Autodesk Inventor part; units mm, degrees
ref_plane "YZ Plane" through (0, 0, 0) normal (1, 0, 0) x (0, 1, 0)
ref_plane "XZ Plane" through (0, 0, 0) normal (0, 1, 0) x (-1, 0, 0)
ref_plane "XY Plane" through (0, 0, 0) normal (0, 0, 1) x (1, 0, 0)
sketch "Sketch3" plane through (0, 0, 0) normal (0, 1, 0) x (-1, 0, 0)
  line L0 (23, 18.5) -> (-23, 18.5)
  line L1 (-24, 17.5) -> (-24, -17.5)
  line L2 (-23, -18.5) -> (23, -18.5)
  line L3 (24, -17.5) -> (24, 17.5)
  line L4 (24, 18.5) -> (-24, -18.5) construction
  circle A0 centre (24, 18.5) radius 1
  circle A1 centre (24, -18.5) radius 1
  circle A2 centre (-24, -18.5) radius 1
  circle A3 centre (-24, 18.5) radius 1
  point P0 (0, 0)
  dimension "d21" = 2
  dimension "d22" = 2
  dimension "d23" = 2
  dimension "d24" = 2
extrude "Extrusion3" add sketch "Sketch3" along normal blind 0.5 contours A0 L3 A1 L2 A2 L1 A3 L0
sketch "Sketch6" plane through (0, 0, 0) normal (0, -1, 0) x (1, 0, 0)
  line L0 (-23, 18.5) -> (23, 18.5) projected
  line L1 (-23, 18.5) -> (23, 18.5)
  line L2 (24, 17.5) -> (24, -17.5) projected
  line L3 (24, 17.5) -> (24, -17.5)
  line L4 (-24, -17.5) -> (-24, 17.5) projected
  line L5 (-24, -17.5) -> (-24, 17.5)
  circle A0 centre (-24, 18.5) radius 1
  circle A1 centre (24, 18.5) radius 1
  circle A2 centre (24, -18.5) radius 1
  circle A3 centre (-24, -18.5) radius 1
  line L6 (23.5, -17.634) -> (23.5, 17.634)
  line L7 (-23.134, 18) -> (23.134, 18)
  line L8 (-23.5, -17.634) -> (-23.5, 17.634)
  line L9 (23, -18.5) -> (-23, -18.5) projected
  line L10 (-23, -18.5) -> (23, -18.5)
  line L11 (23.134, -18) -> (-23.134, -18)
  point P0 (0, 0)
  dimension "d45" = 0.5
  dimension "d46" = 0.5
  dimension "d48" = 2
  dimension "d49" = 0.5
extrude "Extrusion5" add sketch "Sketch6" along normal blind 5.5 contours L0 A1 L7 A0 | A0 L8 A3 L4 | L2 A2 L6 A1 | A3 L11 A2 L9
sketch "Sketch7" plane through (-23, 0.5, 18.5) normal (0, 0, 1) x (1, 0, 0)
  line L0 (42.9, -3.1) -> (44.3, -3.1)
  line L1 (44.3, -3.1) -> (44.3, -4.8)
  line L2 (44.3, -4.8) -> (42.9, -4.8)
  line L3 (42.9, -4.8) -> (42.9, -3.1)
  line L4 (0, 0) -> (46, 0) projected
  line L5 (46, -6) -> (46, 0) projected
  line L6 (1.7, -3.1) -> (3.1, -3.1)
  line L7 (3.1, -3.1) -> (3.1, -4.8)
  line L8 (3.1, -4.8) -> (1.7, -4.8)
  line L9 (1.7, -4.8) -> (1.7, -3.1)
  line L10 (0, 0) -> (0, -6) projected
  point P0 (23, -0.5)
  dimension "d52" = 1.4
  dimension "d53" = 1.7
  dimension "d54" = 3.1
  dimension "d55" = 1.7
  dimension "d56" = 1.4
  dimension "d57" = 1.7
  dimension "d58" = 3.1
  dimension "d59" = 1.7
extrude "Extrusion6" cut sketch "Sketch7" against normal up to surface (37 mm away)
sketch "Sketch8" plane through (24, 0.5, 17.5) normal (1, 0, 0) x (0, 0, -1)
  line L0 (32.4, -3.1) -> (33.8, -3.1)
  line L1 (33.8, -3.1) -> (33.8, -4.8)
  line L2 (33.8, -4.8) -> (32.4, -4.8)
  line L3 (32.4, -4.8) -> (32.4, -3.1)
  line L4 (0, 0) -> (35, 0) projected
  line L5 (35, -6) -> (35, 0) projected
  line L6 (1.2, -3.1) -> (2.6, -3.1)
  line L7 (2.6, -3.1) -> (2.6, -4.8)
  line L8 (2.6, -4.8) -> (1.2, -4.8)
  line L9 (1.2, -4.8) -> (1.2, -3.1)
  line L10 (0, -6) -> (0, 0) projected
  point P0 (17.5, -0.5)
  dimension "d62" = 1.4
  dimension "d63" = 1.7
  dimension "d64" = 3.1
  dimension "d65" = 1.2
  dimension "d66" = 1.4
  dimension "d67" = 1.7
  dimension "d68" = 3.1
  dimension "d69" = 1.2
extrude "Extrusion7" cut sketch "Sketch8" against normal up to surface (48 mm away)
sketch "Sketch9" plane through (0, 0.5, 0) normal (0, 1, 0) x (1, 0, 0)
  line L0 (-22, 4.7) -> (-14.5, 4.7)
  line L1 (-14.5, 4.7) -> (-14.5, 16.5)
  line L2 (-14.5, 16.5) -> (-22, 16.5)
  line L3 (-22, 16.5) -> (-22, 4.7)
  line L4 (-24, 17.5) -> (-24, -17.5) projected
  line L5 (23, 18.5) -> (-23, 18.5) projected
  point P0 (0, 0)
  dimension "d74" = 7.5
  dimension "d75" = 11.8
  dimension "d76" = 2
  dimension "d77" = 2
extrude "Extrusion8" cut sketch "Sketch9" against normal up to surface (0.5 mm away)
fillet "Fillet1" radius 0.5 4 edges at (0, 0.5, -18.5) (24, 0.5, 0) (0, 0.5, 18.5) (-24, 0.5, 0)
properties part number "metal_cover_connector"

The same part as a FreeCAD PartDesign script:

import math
import FreeCAD as App
import Part
import Sketcher

V = App.Vector


def edges_at(feature, points):
    """Names of the edges that pass closest to the given points."""
    edges = feature.Shape.Edges
    near = lambda p: min(range(len(edges)), key=lambda i: edges[i].distToShape(Part.Vertex(*p))[0])
    return sorted({f"Edge{near(p) + 1}" for p in points})

doc = App.newDocument("Part")
body = doc.addObject("PartDesign::Body", "Body")

sketch1 = doc.addObject("Sketcher::SketchObject", "Sketch")
body.addObject(sketch1)
sketch1.AttachmentSupport = (doc.XZ_Plane, [""])
sketch1.MapMode = "FlatFace"
sketch1.addGeometry([
    Part.ArcOfCircle(Part.Circle(V(-24, 18.5, 0), V(0, 0, 1), 1), math.radians(-90), math.radians(0)),
    Part.LineSegment(V(-23, 18.5, 0), V(23, 18.5, 0)),
    Part.ArcOfCircle(Part.Circle(V(24, 18.5, 0), V(0, 0, 1), 1), math.radians(180), math.radians(270)),
    Part.LineSegment(V(24, 17.5, 0), V(24, -17.5, 0)),
    Part.ArcOfCircle(Part.Circle(V(24, -18.5, 0), V(0, 0, 1), 1), math.radians(90), math.radians(180)),
    Part.LineSegment(V(23, -18.5, 0), V(-23, -18.5, 0)),
    Part.ArcOfCircle(Part.Circle(V(-24, -18.5, 0), V(0, 0, 1), 1), math.radians(0), math.radians(90)),
    Part.LineSegment(V(-24, -17.5, 0), V(-24, 17.5, 0)),
], False)
sketch1.addConstraint([
    Sketcher.Constraint("Coincident", 0, 2, 1, 1),
    Sketcher.Constraint("Coincident", 1, 2, 2, 1),
    Sketcher.Constraint("Coincident", 2, 2, 3, 1),
    Sketcher.Constraint("Coincident", 3, 2, 4, 1),
    Sketcher.Constraint("Coincident", 4, 2, 5, 1),
    Sketcher.Constraint("Coincident", 5, 2, 6, 1),
    Sketcher.Constraint("Coincident", 6, 2, 7, 1),
    Sketcher.Constraint("Coincident", 7, 2, 0, 1),
    Sketcher.Constraint("Horizontal", 1),
    Sketcher.Constraint("Vertical", 3),
    Sketcher.Constraint("Horizontal", 5),
    Sketcher.Constraint("Vertical", 7),
    Sketcher.Constraint("Equal", 0, 2),
    Sketcher.Constraint("Equal", 2, 4),
    Sketcher.Constraint("Equal", 4, 6),
    Sketcher.Constraint("Symmetric", 0, 3, 4, 3, -1, 1),
    Sketcher.Constraint("Symmetric", 2, 3, 6, 3, -1, 1),
    Sketcher.Constraint("Symmetric", 0, 3, 2, 3, -2),
    Sketcher.Constraint("Horizontal", 2, 3, 0, 2),
    Sketcher.Constraint("Horizontal", 6, 3, 4, 2),
    Sketcher.Constraint("Vertical", 4, 3, 2, 2),
    Sketcher.Constraint("Vertical", 0, 3, 6, 2),
    Sketcher.Constraint("Radius", 0, 1.0),
    Sketcher.Constraint("DistanceX", 1, 1, 1, 2, 46.0),
    Sketcher.Constraint("DistanceY", 3, 2, 3, 1, 35.0),
])
pad1 = doc.addObject("PartDesign::Pad", "Pad")
body.addObject(pad1)
pad1.Profile = sketch1
pad1.Length = 0.5
pad1.Reversed = True

sketch2 = doc.addObject("Sketcher::SketchObject", "Sketch001")
body.addObject(sketch2)
sketch2.AttachmentSupport = (doc.XZ_Plane, [""])
sketch2.MapMode = "FlatFace"
sketch2.addGeometry([
    Part.LineSegment(V(23, 18.5, 0), V(-23, 18.5, 0)),
    Part.ArcOfCircle(Part.Circle(V(-24, 18.5, 0), V(0, 0, 1), 1), math.radians(-30), math.radians(0)),
    Part.LineSegment(V(-23.1, 18, 0), V(23.1, 18, 0)),
    Part.ArcOfCircle(Part.Circle(V(24, 18.5, 0), V(0, 0, 1), 1), math.radians(180), math.radians(210)),
    Part.ArcOfCircle(Part.Circle(V(-24, 18.5, 0), V(0, 0, 1), 1), math.radians(-90), math.radians(-60)),
    Part.LineSegment(V(-24, 17.5, 0), V(-24, -17.5, 0)),
    Part.ArcOfCircle(Part.Circle(V(-24, -18.5, 0), V(0, 0, 1), 1), math.radians(60), math.radians(90)),
    Part.LineSegment(V(-23.5, -17.6, 0), V(-23.5, 17.6, 0)),
    Part.LineSegment(V(24, -17.5, 0), V(24, 17.5, 0)),
    Part.ArcOfCircle(Part.Circle(V(24, 18.5, 0), V(0, 0, 1), 1), math.radians(-120), math.radians(-90)),
    Part.LineSegment(V(23.5, 17.6, 0), V(23.5, -17.6, 0)),
    Part.ArcOfCircle(Part.Circle(V(24, -18.5, 0), V(0, 0, 1), 1), math.radians(90), math.radians(120)),
    Part.ArcOfCircle(Part.Circle(V(-24, -18.5, 0), V(0, 0, 1), 1), math.radians(0), math.radians(30)),
    Part.LineSegment(V(-23, -18.5, 0), V(23, -18.5, 0)),
    Part.ArcOfCircle(Part.Circle(V(24, -18.5, 0), V(0, 0, 1), 1), math.radians(150), math.radians(180)),
    Part.LineSegment(V(23.1, -18, 0), V(-23.1, -18, 0)),
], False)
sketch2.addConstraint([
    Sketcher.Constraint("Coincident", 0, 2, 1, 2),
    Sketcher.Constraint("Coincident", 1, 1, 2, 1),
    Sketcher.Constraint("Coincident", 2, 2, 3, 2),
    Sketcher.Constraint("Coincident", 3, 1, 0, 1),
    Sketcher.Constraint("Coincident", 4, 1, 5, 1),
    Sketcher.Constraint("Coincident", 5, 2, 6, 2),
    Sketcher.Constraint("Coincident", 6, 1, 7, 1),
    Sketcher.Constraint("Coincident", 7, 2, 4, 2),
    Sketcher.Constraint("Coincident", 8, 2, 9, 2),
    Sketcher.Constraint("Coincident", 9, 1, 10, 1),
    Sketcher.Constraint("Coincident", 10, 2, 11, 2),
    Sketcher.Constraint("Coincident", 11, 1, 8, 1),
    Sketcher.Constraint("Coincident", 12, 1, 13, 1),
    Sketcher.Constraint("Coincident", 13, 2, 14, 2),
    Sketcher.Constraint("Coincident", 14, 1, 15, 1),
    Sketcher.Constraint("Coincident", 15, 2, 12, 2),
    Sketcher.Constraint("Horizontal", 0),
    Sketcher.Constraint("Horizontal", 2),
    Sketcher.Constraint("Vertical", 5),
    Sketcher.Constraint("Vertical", 7),
    Sketcher.Constraint("Vertical", 8),
    Sketcher.Constraint("Vertical", 10),
    Sketcher.Constraint("Horizontal", 13),
    Sketcher.Constraint("Horizontal", 15),
    Sketcher.Constraint("Coincident", 4, 3, 1, 3),
    Sketcher.Constraint("Coincident", 9, 3, 3, 3),
    Sketcher.Constraint("Coincident", 12, 3, 6, 3),
    Sketcher.Constraint("Coincident", 14, 3, 11, 3),
    Sketcher.Constraint("Equal", 1, 3),
    Sketcher.Constraint("Equal", 3, 4),
    Sketcher.Constraint("Equal", 4, 6),
    Sketcher.Constraint("Equal", 6, 9),
    Sketcher.Constraint("Equal", 9, 11),
    Sketcher.Constraint("Equal", 11, 12),
    Sketcher.Constraint("Equal", 12, 14),
    Sketcher.Constraint("Symmetric", 3, 3, 6, 3, -1, 1),
    Sketcher.Constraint("Symmetric", 1, 3, 11, 3, -1, 1),
    Sketcher.Constraint("Symmetric", 1, 3, 3, 3, -2),
    Sketcher.Constraint("Horizontal", 9, 3, 0, 2),
    Sketcher.Constraint("Horizontal", 7, 2, 9, 1),
    Sketcher.Constraint("Horizontal", 14, 3, 12, 1),
    Sketcher.Constraint("Vertical", 12, 3, 4, 1),
    Sketcher.Constraint("Vertical", 14, 3, 8, 2),
    Sketcher.Constraint("Vertical", 2, 2, 14, 1),
    Sketcher.Constraint("Radius", 1, 1.0),
    Sketcher.Constraint("DistanceY", 1, 1, 0, 2, 0.5),
    Sketcher.Constraint("DistanceX", 5, 2, 6, 1, 0.5),
    Sketcher.Constraint("DistanceX", 0, 2, 0, 1, 46.0),
    Sketcher.Constraint("DistanceY", 5, 2, 5, 1, 35.0),
])
pad2 = doc.addObject("PartDesign::Pad", "Pad001")
body.addObject(pad2)
pad2.Profile = sketch2
pad2.Length = 5.5

sketch3 = doc.addObject("Sketcher::SketchObject", "Sketch002")
body.addObject(sketch3)
sketch3.AttachmentSupport = (doc.XY_Plane, [""])
sketch3.MapMode = "FlatFace"
sketch3.AttachmentOffset = App.Placement(V(0, 0, 18.5), App.Rotation())
sketch3.addGeometry([
    Part.LineSegment(V(21.3, -2.6, 0), V(19.9, -2.6, 0)),
    Part.LineSegment(V(19.9, -2.6, 0), V(19.9, -4.3, 0)),
    Part.LineSegment(V(19.9, -4.3, 0), V(21.3, -4.3, 0)),
    Part.LineSegment(V(21.3, -4.3, 0), V(21.3, -2.6, 0)),
    Part.LineSegment(V(-19.9, -2.6, 0), V(-21.3, -2.6, 0)),
    Part.LineSegment(V(-21.3, -2.6, 0), V(-21.3, -4.3, 0)),
    Part.LineSegment(V(-21.3, -4.3, 0), V(-19.9, -4.3, 0)),
    Part.LineSegment(V(-19.9, -4.3, 0), V(-19.9, -2.6, 0)),
], False)
sketch3.addConstraint([
    Sketcher.Constraint("Coincident", 0, 2, 1, 1),
    Sketcher.Constraint("Coincident", 1, 2, 2, 1),
    Sketcher.Constraint("Coincident", 2, 2, 3, 1),
    Sketcher.Constraint("Coincident", 3, 2, 0, 1),
    Sketcher.Constraint("Coincident", 4, 2, 5, 1),
    Sketcher.Constraint("Coincident", 5, 2, 6, 1),
    Sketcher.Constraint("Coincident", 6, 2, 7, 1),
    Sketcher.Constraint("Coincident", 7, 2, 4, 1),
    Sketcher.Constraint("Horizontal", 0),
    Sketcher.Constraint("Vertical", 1),
    Sketcher.Constraint("Horizontal", 2),
    Sketcher.Constraint("Vertical", 3),
    Sketcher.Constraint("Horizontal", 4),
    Sketcher.Constraint("Vertical", 5),
    Sketcher.Constraint("Horizontal", 6),
    Sketcher.Constraint("Vertical", 7),
    Sketcher.Constraint("Symmetric", 3, 2, 4, 2, -2),
    Sketcher.Constraint("Symmetric", 1, 2, 6, 2, -2),
    Sketcher.Constraint("DistanceX", 0, 2, 0, 1, 1.4),
    Sketcher.Constraint("DistanceY", 1, 2, 1, 1, 1.7),
    Sketcher.Constraint("DistanceX", -1, 1, 0, 2, 19.9),
    Sketcher.Constraint("DistanceY", 0, 2, -1, 1, 2.6),
])
pocket1 = doc.addObject("PartDesign::Pocket", "Pocket")
body.addObject(pocket1)
pocket1.Profile = sketch3
pocket1.Length = 37

sketch4 = doc.addObject("Sketcher::SketchObject", "Sketch003")
body.addObject(sketch4)
sketch4.AttachmentSupport = (doc.YZ_Plane, [""])
sketch4.MapMode = "FlatFace"
sketch4.AttachmentOffset = App.Placement(V(0, 0, 24), App.Rotation())
sketch4.addGeometry([
    Part.LineSegment(V(-2.6, -16.3, 0), V(-2.6, -14.9, 0)),
    Part.LineSegment(V(-2.6, -14.9, 0), V(-4.3, -14.9, 0)),
    Part.LineSegment(V(-4.3, -14.9, 0), V(-4.3, -16.3, 0)),
    Part.LineSegment(V(-4.3, -16.3, 0), V(-2.6, -16.3, 0)),
    Part.LineSegment(V(-2.6, 14.9, 0), V(-2.6, 16.3, 0)),
    Part.LineSegment(V(-2.6, 16.3, 0), V(-4.3, 16.3, 0)),
    Part.LineSegment(V(-4.3, 16.3, 0), V(-4.3, 14.9, 0)),
    Part.LineSegment(V(-4.3, 14.9, 0), V(-2.6, 14.9, 0)),
], False)
sketch4.addConstraint([
    Sketcher.Constraint("Coincident", 0, 2, 1, 1),
    Sketcher.Constraint("Coincident", 1, 2, 2, 1),
    Sketcher.Constraint("Coincident", 2, 2, 3, 1),
    Sketcher.Constraint("Coincident", 3, 2, 0, 1),
    Sketcher.Constraint("Coincident", 4, 2, 5, 1),
    Sketcher.Constraint("Coincident", 5, 2, 6, 1),
    Sketcher.Constraint("Coincident", 6, 2, 7, 1),
    Sketcher.Constraint("Coincident", 7, 2, 4, 1),
    Sketcher.Constraint("Vertical", 0),
    Sketcher.Constraint("Horizontal", 1),
    Sketcher.Constraint("Vertical", 2),
    Sketcher.Constraint("Horizontal", 3),
    Sketcher.Constraint("Vertical", 4),
    Sketcher.Constraint("Horizontal", 5),
    Sketcher.Constraint("Vertical", 6),
    Sketcher.Constraint("Horizontal", 7),
    Sketcher.Constraint("Symmetric", 3, 2, 4, 2, -1),
    Sketcher.Constraint("Symmetric", 1, 2, 6, 2, -1),
    Sketcher.Constraint("DistanceX", 1, 2, 1, 1, 1.7),
    Sketcher.Constraint("DistanceY", 0, 1, 0, 2, 1.4),
    Sketcher.Constraint("DistanceX", 0, 2, -1, 1, 2.6),
    Sketcher.Constraint("DistanceY", 0, 2, -1, 1, 14.9),
])
pocket2 = doc.addObject("PartDesign::Pocket", "Pocket001")
body.addObject(pocket2)
pocket2.Profile = sketch4
pocket2.Length = 48

sketch5 = doc.addObject("Sketcher::SketchObject", "Sketch004")
body.addObject(sketch5)
sketch5.AttachmentSupport = (doc.XZ_Plane, [""])
sketch5.MapMode = "FlatFace"
sketch5.AttachmentOffset = App.Placement(V(0, 0, -0.5), App.Rotation())
sketch5.addGeometry([
    Part.LineSegment(V(-22, -16, 0), V(-22, -5, 0)),
    Part.LineSegment(V(-22, -5, 0), V(-14, -5, 0)),
    Part.LineSegment(V(-14, -5, 0), V(-14, -16, 0)),
    Part.LineSegment(V(-14, -16, 0), V(-22, -16, 0)),
], False)
sketch5.addConstraint([
    Sketcher.Constraint("Coincident", 0, 2, 1, 1),
    Sketcher.Constraint("Coincident", 1, 2, 2, 1),
    Sketcher.Constraint("Coincident", 2, 2, 3, 1),
    Sketcher.Constraint("Coincident", 3, 2, 0, 1),
    Sketcher.Constraint("Vertical", 0),
    Sketcher.Constraint("Horizontal", 1),
    Sketcher.Constraint("Vertical", 2),
    Sketcher.Constraint("Horizontal", 3),
    Sketcher.Constraint("DistanceX", 1, 1, 1, 2, 7.5),
    Sketcher.Constraint("DistanceY", 0, 1, 0, 2, 11.8),
    Sketcher.Constraint("DistanceX", 0, 2, -1, 1, 22.0),
    Sketcher.Constraint("DistanceY", 0, 2, -1, 1, 4.7),
])
pocket3 = doc.addObject("PartDesign::Pocket", "Pocket002")
body.addObject(pocket3)
pocket3.Profile = sketch5
pocket3.Length = 0.5
pocket3.Reversed = True
doc.recompute()

fillet = doc.addObject("PartDesign::Fillet", "Fillet")
body.addObject(fillet)
fillet.Base = (pocket3, edges_at(pocket3, [
    (0, 0.5, -18.5),
    (24, 0.5, 0),
    (0, 0.5, 18.5),
    (-24, 0.5, 0),
]))
fillet.Radius = 0.5

doc.recompute()
